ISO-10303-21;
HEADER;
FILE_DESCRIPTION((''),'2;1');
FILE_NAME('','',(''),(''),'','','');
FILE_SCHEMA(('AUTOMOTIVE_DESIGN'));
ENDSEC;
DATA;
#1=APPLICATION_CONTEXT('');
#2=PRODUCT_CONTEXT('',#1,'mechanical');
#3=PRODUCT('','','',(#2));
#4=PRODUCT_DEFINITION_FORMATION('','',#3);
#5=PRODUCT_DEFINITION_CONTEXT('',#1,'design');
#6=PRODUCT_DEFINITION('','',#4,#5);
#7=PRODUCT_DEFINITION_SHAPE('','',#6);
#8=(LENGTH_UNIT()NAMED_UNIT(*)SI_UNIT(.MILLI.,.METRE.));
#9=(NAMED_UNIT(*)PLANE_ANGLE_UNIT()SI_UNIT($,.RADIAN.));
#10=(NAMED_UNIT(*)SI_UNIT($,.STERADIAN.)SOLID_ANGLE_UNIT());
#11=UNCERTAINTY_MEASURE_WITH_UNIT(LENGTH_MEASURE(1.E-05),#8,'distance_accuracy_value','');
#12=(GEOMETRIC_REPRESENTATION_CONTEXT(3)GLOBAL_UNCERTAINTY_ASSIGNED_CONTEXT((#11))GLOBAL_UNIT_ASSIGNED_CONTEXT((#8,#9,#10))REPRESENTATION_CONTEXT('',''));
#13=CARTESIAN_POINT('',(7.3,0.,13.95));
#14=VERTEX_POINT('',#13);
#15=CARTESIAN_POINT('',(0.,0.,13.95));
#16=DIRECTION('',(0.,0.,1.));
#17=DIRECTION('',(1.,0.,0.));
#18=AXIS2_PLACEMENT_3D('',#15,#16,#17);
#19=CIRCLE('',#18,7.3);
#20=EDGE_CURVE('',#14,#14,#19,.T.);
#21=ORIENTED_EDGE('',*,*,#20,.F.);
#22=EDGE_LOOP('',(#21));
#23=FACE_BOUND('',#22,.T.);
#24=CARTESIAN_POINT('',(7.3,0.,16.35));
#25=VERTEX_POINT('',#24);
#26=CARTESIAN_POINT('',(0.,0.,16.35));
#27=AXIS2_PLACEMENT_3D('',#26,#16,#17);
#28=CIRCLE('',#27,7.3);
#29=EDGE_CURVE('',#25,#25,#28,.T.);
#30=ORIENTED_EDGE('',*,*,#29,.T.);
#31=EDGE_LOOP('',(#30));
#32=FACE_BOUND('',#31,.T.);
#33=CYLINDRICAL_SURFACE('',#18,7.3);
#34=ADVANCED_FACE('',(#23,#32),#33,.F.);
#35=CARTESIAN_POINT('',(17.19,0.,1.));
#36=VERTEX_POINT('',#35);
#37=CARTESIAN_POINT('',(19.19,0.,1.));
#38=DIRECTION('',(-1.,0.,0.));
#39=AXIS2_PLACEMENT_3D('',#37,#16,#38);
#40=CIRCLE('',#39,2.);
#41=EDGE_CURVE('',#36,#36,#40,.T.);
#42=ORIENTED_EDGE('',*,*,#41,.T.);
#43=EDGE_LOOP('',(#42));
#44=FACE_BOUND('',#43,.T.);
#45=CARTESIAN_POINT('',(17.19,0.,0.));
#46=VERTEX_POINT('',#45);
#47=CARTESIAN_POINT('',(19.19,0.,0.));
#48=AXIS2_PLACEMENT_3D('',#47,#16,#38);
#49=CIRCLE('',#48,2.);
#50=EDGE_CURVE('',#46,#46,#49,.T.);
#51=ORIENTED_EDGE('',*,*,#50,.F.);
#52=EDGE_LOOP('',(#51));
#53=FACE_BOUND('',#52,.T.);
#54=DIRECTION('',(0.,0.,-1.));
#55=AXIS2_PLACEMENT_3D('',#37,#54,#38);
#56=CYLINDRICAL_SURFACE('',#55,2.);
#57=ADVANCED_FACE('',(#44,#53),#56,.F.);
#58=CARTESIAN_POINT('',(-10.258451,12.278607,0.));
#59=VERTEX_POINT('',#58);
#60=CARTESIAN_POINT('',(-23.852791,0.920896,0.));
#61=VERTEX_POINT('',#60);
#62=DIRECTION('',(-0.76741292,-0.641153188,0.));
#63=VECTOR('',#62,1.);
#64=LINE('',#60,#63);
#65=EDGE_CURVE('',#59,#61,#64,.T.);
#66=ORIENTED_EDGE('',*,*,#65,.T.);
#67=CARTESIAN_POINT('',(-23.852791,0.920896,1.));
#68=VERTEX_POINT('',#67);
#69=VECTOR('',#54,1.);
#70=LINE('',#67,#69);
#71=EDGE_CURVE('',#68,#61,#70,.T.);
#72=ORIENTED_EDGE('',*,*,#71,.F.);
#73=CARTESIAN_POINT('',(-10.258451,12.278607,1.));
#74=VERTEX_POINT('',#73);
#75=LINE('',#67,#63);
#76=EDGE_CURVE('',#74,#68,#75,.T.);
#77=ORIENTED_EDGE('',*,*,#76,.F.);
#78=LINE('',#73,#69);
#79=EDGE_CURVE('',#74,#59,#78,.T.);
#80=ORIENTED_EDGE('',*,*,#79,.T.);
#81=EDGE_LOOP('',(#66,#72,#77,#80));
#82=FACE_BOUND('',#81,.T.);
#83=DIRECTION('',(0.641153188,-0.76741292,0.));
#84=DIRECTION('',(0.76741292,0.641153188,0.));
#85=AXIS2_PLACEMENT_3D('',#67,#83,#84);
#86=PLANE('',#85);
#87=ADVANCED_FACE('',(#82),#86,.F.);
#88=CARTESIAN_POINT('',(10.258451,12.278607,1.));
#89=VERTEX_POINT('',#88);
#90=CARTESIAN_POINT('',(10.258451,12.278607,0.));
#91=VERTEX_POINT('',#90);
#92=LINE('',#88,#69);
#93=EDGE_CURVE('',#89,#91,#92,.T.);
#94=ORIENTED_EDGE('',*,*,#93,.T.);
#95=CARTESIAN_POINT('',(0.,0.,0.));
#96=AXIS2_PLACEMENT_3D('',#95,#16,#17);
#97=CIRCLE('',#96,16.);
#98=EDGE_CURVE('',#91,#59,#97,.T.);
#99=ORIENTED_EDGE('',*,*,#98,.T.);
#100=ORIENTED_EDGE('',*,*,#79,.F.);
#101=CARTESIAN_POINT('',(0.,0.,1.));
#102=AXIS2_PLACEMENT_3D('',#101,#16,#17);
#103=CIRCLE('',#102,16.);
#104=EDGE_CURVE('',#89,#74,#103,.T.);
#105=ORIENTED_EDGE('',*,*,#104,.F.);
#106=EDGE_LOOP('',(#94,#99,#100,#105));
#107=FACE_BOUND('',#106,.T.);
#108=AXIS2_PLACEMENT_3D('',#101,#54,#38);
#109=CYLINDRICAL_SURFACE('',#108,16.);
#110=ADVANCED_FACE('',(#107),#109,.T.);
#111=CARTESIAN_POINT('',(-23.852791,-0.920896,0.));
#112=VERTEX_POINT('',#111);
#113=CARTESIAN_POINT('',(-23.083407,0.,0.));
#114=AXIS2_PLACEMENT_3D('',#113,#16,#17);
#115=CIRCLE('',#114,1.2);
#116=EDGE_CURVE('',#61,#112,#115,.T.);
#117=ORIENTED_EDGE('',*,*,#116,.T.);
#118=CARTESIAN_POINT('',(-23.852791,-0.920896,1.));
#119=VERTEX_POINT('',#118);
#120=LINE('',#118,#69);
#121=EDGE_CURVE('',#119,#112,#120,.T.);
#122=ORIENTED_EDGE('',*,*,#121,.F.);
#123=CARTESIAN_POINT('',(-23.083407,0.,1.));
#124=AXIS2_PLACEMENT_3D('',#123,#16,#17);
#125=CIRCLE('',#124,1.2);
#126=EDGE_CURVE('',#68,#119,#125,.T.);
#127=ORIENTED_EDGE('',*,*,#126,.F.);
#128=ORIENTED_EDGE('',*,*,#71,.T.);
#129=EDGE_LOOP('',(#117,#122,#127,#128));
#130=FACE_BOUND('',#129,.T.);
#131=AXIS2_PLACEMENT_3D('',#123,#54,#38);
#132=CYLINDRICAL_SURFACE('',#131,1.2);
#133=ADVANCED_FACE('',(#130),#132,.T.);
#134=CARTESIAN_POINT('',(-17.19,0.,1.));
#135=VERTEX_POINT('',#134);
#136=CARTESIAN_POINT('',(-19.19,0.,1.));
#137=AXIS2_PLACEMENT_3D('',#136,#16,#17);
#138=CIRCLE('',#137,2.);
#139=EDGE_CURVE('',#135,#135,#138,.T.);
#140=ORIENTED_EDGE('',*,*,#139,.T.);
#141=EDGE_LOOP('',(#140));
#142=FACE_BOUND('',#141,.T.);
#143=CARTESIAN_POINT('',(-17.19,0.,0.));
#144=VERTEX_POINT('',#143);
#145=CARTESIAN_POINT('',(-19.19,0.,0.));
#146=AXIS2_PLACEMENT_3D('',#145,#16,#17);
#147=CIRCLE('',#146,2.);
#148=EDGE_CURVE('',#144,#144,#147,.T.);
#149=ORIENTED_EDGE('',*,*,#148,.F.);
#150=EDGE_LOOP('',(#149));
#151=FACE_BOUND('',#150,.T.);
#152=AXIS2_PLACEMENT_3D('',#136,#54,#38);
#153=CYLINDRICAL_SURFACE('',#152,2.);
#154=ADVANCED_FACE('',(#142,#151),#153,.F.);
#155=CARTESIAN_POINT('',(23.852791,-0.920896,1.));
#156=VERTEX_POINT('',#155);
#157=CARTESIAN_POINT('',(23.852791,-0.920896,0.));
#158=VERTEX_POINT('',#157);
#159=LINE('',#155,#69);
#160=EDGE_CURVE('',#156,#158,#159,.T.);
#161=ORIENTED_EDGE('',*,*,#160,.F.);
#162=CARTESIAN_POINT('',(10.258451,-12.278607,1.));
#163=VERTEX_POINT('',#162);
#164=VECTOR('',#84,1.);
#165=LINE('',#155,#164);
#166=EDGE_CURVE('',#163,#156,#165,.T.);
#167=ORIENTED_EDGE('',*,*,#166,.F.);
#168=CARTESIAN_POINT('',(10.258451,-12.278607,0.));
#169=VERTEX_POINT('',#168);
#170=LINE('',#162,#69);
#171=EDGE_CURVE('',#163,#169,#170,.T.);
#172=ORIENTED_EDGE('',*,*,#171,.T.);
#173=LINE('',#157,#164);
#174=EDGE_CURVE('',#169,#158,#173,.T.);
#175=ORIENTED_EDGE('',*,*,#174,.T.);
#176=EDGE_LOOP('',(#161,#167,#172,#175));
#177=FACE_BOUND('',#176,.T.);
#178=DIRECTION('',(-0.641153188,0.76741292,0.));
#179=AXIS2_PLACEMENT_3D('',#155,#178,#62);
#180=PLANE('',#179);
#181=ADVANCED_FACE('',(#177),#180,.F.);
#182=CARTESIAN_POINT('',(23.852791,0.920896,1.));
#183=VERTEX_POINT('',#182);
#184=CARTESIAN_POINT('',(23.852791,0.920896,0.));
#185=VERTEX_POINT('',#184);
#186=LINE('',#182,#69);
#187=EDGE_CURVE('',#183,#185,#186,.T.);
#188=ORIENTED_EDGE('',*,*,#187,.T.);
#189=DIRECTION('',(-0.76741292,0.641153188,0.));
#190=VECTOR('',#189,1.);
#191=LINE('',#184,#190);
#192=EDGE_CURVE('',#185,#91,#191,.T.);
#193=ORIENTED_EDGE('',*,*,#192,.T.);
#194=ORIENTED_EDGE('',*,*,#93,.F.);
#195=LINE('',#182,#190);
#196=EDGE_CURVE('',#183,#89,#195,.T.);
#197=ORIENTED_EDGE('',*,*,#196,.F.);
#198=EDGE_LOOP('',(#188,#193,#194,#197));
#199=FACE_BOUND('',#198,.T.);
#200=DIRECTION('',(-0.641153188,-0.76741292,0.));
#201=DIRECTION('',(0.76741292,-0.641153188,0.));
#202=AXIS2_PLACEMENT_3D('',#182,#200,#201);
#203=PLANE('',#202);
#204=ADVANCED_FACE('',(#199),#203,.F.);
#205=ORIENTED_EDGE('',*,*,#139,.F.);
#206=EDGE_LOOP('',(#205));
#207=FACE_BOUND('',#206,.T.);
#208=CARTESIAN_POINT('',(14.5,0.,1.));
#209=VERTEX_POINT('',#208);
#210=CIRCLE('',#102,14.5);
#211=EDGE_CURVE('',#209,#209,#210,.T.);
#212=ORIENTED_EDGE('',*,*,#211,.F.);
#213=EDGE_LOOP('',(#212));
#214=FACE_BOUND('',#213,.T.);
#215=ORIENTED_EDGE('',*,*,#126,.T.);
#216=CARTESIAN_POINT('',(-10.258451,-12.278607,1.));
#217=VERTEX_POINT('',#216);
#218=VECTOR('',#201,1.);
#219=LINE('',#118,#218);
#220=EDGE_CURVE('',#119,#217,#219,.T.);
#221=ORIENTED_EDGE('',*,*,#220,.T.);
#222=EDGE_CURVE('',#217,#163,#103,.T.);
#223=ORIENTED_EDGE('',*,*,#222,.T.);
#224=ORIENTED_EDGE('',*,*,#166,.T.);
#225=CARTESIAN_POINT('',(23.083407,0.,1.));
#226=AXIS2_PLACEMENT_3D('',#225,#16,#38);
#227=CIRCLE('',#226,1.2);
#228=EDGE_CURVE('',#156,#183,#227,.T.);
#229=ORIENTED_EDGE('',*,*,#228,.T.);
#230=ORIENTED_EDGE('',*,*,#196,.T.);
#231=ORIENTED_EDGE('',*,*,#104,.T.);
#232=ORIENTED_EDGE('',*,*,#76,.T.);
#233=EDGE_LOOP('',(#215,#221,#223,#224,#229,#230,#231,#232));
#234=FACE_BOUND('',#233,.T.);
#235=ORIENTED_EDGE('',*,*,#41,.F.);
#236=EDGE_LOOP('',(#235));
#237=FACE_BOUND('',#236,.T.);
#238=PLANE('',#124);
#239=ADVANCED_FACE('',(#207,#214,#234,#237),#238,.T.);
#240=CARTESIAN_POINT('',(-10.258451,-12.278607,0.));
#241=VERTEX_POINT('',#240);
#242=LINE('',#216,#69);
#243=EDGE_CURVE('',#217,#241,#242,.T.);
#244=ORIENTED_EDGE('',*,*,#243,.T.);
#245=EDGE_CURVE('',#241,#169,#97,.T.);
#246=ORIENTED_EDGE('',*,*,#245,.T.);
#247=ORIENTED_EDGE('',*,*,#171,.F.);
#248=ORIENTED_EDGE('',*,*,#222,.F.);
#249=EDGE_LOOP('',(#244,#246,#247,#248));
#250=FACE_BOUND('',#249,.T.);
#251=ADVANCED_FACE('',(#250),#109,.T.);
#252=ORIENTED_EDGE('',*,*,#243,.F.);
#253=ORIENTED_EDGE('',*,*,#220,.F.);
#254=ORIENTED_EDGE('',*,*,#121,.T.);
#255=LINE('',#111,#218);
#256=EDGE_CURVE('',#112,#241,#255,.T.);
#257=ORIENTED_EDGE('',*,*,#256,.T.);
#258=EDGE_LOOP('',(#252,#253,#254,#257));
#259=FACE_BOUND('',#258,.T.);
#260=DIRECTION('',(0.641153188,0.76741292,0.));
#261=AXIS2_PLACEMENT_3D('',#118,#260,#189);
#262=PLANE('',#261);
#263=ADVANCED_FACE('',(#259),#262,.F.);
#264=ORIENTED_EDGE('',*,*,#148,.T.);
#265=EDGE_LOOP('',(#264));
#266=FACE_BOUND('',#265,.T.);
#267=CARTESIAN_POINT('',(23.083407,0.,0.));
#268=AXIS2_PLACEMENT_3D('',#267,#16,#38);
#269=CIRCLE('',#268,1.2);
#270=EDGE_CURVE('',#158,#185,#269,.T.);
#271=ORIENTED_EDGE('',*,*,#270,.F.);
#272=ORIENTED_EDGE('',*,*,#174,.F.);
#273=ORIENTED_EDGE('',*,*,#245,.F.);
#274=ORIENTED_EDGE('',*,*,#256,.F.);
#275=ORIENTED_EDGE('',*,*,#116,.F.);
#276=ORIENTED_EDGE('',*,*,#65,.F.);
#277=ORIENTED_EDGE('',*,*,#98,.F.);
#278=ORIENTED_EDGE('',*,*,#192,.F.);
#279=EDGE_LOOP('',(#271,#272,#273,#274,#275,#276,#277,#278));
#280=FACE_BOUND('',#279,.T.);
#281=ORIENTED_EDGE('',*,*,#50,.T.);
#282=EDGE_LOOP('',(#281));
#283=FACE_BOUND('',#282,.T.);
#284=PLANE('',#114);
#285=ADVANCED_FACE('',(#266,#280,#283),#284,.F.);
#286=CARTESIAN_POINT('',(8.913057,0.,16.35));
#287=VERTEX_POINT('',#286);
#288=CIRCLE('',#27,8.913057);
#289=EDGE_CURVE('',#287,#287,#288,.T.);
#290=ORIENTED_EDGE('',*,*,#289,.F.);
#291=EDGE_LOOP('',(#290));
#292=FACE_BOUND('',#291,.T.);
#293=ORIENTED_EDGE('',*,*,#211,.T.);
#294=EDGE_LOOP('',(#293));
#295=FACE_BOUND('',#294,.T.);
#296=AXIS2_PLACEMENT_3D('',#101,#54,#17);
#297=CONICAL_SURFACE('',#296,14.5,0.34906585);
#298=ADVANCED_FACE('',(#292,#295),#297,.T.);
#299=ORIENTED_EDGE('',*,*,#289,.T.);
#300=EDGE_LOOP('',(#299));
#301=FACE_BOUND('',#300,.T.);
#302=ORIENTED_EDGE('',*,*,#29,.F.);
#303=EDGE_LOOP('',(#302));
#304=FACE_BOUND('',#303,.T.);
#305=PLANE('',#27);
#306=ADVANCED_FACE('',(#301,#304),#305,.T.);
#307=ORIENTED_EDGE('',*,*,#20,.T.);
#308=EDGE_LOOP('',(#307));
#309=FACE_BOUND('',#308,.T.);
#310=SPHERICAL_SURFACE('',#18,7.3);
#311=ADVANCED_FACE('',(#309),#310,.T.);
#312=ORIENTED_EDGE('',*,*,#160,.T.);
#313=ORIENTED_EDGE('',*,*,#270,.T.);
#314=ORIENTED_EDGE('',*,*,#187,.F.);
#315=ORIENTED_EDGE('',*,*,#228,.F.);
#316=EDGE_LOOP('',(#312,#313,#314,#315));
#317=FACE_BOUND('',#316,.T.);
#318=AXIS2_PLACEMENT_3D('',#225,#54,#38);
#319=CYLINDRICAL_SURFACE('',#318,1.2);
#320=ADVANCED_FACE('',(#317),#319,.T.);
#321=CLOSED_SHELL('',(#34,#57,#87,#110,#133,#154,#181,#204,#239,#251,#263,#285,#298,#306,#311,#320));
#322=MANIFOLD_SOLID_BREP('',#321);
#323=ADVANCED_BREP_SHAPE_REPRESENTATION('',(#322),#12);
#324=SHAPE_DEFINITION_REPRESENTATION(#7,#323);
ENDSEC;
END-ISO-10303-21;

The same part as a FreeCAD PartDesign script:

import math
import FreeCAD as App
import Part
import Sketcher
from FreeCAD import Vector

doc = App.newDocument("Part")
body = doc.addObject("PartDesign::Body", "Body")

# Sketch on XY plane
sketch1 = body.newObject("Sketcher::SketchObject", "Sketch")
sketch1.AttachmentSupport = (doc.getObject("XY_Plane"), [""])
sketch1.MapMode = "FlatFace"
sketch1.addGeometry(Part.LineSegment(Vector(-10.3, 12.3, 0), Vector(-23.9, 0.9, 0)), False)
sketch1.addGeometry(Part.ArcOfCircle(Part.Circle(Vector(-23.1, 0, 0), Vector(0, 0, 1), 1.2), math.radians(130), math.radians(230)), False)
sketch1.addGeometry(Part.LineSegment(Vector(-23.9, -0.9, 0), Vector(-10.3, -12.3, 0)), False)
sketch1.addGeometry(Part.ArcOfCircle(Part.Circle(Vector(0, 0, 0), Vector(0, 0, 1), 16), math.radians(-130), math.radians(-50)), False)
sketch1.addGeometry(Part.LineSegment(Vector(10.3, -12.3, 0), Vector(23.9, -0.9, 0)), False)
sketch1.addGeometry(Part.ArcOfCircle(Part.Circle(Vector(23.1, 0, 0), Vector(0, 0, 1), 1.2), math.radians(-50), math.radians(50)), False)
sketch1.addGeometry(Part.LineSegment(Vector(23.9, 0.9, 0), Vector(10.3, 12.3, 0)), False)
sketch1.addGeometry(Part.ArcOfCircle(Part.Circle(Vector(0, 0, 0), Vector(0, 0, 1), 16), math.radians(50), math.radians(130)), False)
sketch1.addGeometry(Part.Circle(Vector(19.2, 0, 0), Vector(0, 0, 1), 2), False)
sketch1.addGeometry(Part.Circle(Vector(-19.2, 0, 0), Vector(0, 0, 1), 2), False)
sketch1.addConstraint(Sketcher.Constraint("Tangent", 0, 2, 1, 1))
sketch1.addConstraint(Sketcher.Constraint("Tangent", 1, 2, 2, 1))
sketch1.addConstraint(Sketcher.Constraint("Tangent", 2, 2, 3, 1))
sketch1.addConstraint(Sketcher.Constraint("Tangent", 3, 2, 4, 1))
sketch1.addConstraint(Sketcher.Constraint("Tangent", 4, 2, 5, 1))
sketch1.addConstraint(Sketcher.Constraint("Tangent", 5, 2, 6, 1))
sketch1.addConstraint(Sketcher.Constraint("Tangent", 6, 2, 7, 1))
sketch1.addConstraint(Sketcher.Constraint("Tangent", 7, 2, 0, 1))
sketch1.addConstraint(Sketcher.Constraint("Coincident", 3, 3, -1, 1))
sketch1.addConstraint(Sketcher.Constraint("Coincident", 7, 3, -1, 1))
sketch1.addConstraint(Sketcher.Constraint("Equal", 1, 5))
sketch1.addConstraint(Sketcher.Constraint("Equal", 3, 7))
sketch1.addConstraint(Sketcher.Constraint("Equal", 8, 9))
sketch1.addConstraint(Sketcher.Constraint("Symmetric", 1, 3, 5, 3, -1, 1))
sketch1.addConstraint(Sketcher.Constraint("Symmetric", 8, 3, 9, 3, -1, 1))
sketch1.addConstraint(Sketcher.Constraint("PointOnObject", 1, 3, -1))
sketch1.addConstraint(Sketcher.Constraint("PointOnObject", 8, 3, -1))
sketch1.addConstraint(Sketcher.Constraint("Diameter", 8, 4.0))
sketch1.addConstraint(Sketcher.Constraint("Radius", 3, 16.0))
sketch1.addConstraint(Sketcher.Constraint("Radius", 1, 1.2))
sketch1.addConstraint(Sketcher.Constraint("DistanceX", -1, 1, 8, 3, 19.19))
sketch1.addConstraint(Sketcher.Constraint("DistanceX", 0, 2, -1, 1, 23.852791))
pad1 = body.newObject("PartDesign::Pad", "Pad")
pad1.Profile = sketch1
pad1.Length = 1

# Sketch on XY plane
sketch2 = body.newObject("Sketcher::SketchObject", "Sketch001")
sketch2.AttachmentSupport = (doc.getObject("XY_Plane"), [""])
sketch2.MapMode = "FlatFace"
sketch2.AttachmentOffset = App.Placement(Vector(0, 0, 1), App.Rotation())
sketch2.addGeometry(Part.Circle(Vector(0, 0, 0), Vector(0, 0, 1), 14), False)
sketch2.addConstraint(Sketcher.Constraint("Coincident", 0, 3, -1, 1))
sketch2.addConstraint(Sketcher.Constraint("Diameter", 0, 29.0))
pad2 = body.newObject("PartDesign::Pad", "Pad001")
pad2.Profile = sketch2
pad2.Length = 15.35
pad2.TaperAngle = -20

# Sketch on XY plane
sketch3 = body.newObject("Sketcher::SketchObject", "Sketch002")
sketch3.AttachmentSupport = (doc.getObject("XY_Plane"), [""])
sketch3.MapMode = "FlatFace"
sketch3.AttachmentOffset = App.Placement(Vector(0, 0, 16.35), App.Rotation())
sketch3.addGeometry(Part.Circle(Vector(0, 0, 0), Vector(0, 0, 1), 7), False)
sketch3.addConstraint(Sketcher.Constraint("Coincident", 0, 3, -1, 1))
sketch3.addConstraint(Sketcher.Constraint("Diameter", 0, 14.6))
pocket1 = body.newObject("PartDesign::Pocket", "Pocket")
pocket1.Profile = sketch3
pocket1.Length = 2.4

# Sketch on XY plane
sketch4 = body.newObject("Sketcher::SketchObject", "Sketch003")
sketch4.AttachmentSupport = (doc.getObject("XY_Plane"), [""])
sketch4.MapMode = "FlatFace"
sketch4.AttachmentOffset = App.Placement(Vector(0, 0, 13.95), App.Rotation())
sketch4.addGeometry(Part.LineSegment(Vector(0, -7, 0), Vector(0, 7, 0)), False)
sketch4.addGeometry(Part.ArcOfCircle(Part.Circle(Vector(0, 0, 0), Vector(0, 0, 1), 7), math.radians(90), math.radians(270)), False)
sketch4.addConstraint(Sketcher.Constraint("Coincident", 0, 1, 1, 2))
sketch4.addConstraint(Sketcher.Constraint("Coincident", 1, 1, 0, 2))
sketch4.addConstraint(Sketcher.Constraint("Vertical", 0))
sketch4.addConstraint(Sketcher.Constraint("Coincident", 1, 3, -1, 1))
sketch4.addConstraint(Sketcher.Constraint("PointOnObject", 0, 1, -2))
sketch4.addConstraint(Sketcher.Constraint("Radius", 1, 7.3))
revolution = body.newObject("PartDesign::Revolution", "Revolution")
revolution.Profile = sketch4
revolution.ReferenceAxis = (sketch4, ["V_Axis"])
revolution.Angle = 360

doc.recompute()
